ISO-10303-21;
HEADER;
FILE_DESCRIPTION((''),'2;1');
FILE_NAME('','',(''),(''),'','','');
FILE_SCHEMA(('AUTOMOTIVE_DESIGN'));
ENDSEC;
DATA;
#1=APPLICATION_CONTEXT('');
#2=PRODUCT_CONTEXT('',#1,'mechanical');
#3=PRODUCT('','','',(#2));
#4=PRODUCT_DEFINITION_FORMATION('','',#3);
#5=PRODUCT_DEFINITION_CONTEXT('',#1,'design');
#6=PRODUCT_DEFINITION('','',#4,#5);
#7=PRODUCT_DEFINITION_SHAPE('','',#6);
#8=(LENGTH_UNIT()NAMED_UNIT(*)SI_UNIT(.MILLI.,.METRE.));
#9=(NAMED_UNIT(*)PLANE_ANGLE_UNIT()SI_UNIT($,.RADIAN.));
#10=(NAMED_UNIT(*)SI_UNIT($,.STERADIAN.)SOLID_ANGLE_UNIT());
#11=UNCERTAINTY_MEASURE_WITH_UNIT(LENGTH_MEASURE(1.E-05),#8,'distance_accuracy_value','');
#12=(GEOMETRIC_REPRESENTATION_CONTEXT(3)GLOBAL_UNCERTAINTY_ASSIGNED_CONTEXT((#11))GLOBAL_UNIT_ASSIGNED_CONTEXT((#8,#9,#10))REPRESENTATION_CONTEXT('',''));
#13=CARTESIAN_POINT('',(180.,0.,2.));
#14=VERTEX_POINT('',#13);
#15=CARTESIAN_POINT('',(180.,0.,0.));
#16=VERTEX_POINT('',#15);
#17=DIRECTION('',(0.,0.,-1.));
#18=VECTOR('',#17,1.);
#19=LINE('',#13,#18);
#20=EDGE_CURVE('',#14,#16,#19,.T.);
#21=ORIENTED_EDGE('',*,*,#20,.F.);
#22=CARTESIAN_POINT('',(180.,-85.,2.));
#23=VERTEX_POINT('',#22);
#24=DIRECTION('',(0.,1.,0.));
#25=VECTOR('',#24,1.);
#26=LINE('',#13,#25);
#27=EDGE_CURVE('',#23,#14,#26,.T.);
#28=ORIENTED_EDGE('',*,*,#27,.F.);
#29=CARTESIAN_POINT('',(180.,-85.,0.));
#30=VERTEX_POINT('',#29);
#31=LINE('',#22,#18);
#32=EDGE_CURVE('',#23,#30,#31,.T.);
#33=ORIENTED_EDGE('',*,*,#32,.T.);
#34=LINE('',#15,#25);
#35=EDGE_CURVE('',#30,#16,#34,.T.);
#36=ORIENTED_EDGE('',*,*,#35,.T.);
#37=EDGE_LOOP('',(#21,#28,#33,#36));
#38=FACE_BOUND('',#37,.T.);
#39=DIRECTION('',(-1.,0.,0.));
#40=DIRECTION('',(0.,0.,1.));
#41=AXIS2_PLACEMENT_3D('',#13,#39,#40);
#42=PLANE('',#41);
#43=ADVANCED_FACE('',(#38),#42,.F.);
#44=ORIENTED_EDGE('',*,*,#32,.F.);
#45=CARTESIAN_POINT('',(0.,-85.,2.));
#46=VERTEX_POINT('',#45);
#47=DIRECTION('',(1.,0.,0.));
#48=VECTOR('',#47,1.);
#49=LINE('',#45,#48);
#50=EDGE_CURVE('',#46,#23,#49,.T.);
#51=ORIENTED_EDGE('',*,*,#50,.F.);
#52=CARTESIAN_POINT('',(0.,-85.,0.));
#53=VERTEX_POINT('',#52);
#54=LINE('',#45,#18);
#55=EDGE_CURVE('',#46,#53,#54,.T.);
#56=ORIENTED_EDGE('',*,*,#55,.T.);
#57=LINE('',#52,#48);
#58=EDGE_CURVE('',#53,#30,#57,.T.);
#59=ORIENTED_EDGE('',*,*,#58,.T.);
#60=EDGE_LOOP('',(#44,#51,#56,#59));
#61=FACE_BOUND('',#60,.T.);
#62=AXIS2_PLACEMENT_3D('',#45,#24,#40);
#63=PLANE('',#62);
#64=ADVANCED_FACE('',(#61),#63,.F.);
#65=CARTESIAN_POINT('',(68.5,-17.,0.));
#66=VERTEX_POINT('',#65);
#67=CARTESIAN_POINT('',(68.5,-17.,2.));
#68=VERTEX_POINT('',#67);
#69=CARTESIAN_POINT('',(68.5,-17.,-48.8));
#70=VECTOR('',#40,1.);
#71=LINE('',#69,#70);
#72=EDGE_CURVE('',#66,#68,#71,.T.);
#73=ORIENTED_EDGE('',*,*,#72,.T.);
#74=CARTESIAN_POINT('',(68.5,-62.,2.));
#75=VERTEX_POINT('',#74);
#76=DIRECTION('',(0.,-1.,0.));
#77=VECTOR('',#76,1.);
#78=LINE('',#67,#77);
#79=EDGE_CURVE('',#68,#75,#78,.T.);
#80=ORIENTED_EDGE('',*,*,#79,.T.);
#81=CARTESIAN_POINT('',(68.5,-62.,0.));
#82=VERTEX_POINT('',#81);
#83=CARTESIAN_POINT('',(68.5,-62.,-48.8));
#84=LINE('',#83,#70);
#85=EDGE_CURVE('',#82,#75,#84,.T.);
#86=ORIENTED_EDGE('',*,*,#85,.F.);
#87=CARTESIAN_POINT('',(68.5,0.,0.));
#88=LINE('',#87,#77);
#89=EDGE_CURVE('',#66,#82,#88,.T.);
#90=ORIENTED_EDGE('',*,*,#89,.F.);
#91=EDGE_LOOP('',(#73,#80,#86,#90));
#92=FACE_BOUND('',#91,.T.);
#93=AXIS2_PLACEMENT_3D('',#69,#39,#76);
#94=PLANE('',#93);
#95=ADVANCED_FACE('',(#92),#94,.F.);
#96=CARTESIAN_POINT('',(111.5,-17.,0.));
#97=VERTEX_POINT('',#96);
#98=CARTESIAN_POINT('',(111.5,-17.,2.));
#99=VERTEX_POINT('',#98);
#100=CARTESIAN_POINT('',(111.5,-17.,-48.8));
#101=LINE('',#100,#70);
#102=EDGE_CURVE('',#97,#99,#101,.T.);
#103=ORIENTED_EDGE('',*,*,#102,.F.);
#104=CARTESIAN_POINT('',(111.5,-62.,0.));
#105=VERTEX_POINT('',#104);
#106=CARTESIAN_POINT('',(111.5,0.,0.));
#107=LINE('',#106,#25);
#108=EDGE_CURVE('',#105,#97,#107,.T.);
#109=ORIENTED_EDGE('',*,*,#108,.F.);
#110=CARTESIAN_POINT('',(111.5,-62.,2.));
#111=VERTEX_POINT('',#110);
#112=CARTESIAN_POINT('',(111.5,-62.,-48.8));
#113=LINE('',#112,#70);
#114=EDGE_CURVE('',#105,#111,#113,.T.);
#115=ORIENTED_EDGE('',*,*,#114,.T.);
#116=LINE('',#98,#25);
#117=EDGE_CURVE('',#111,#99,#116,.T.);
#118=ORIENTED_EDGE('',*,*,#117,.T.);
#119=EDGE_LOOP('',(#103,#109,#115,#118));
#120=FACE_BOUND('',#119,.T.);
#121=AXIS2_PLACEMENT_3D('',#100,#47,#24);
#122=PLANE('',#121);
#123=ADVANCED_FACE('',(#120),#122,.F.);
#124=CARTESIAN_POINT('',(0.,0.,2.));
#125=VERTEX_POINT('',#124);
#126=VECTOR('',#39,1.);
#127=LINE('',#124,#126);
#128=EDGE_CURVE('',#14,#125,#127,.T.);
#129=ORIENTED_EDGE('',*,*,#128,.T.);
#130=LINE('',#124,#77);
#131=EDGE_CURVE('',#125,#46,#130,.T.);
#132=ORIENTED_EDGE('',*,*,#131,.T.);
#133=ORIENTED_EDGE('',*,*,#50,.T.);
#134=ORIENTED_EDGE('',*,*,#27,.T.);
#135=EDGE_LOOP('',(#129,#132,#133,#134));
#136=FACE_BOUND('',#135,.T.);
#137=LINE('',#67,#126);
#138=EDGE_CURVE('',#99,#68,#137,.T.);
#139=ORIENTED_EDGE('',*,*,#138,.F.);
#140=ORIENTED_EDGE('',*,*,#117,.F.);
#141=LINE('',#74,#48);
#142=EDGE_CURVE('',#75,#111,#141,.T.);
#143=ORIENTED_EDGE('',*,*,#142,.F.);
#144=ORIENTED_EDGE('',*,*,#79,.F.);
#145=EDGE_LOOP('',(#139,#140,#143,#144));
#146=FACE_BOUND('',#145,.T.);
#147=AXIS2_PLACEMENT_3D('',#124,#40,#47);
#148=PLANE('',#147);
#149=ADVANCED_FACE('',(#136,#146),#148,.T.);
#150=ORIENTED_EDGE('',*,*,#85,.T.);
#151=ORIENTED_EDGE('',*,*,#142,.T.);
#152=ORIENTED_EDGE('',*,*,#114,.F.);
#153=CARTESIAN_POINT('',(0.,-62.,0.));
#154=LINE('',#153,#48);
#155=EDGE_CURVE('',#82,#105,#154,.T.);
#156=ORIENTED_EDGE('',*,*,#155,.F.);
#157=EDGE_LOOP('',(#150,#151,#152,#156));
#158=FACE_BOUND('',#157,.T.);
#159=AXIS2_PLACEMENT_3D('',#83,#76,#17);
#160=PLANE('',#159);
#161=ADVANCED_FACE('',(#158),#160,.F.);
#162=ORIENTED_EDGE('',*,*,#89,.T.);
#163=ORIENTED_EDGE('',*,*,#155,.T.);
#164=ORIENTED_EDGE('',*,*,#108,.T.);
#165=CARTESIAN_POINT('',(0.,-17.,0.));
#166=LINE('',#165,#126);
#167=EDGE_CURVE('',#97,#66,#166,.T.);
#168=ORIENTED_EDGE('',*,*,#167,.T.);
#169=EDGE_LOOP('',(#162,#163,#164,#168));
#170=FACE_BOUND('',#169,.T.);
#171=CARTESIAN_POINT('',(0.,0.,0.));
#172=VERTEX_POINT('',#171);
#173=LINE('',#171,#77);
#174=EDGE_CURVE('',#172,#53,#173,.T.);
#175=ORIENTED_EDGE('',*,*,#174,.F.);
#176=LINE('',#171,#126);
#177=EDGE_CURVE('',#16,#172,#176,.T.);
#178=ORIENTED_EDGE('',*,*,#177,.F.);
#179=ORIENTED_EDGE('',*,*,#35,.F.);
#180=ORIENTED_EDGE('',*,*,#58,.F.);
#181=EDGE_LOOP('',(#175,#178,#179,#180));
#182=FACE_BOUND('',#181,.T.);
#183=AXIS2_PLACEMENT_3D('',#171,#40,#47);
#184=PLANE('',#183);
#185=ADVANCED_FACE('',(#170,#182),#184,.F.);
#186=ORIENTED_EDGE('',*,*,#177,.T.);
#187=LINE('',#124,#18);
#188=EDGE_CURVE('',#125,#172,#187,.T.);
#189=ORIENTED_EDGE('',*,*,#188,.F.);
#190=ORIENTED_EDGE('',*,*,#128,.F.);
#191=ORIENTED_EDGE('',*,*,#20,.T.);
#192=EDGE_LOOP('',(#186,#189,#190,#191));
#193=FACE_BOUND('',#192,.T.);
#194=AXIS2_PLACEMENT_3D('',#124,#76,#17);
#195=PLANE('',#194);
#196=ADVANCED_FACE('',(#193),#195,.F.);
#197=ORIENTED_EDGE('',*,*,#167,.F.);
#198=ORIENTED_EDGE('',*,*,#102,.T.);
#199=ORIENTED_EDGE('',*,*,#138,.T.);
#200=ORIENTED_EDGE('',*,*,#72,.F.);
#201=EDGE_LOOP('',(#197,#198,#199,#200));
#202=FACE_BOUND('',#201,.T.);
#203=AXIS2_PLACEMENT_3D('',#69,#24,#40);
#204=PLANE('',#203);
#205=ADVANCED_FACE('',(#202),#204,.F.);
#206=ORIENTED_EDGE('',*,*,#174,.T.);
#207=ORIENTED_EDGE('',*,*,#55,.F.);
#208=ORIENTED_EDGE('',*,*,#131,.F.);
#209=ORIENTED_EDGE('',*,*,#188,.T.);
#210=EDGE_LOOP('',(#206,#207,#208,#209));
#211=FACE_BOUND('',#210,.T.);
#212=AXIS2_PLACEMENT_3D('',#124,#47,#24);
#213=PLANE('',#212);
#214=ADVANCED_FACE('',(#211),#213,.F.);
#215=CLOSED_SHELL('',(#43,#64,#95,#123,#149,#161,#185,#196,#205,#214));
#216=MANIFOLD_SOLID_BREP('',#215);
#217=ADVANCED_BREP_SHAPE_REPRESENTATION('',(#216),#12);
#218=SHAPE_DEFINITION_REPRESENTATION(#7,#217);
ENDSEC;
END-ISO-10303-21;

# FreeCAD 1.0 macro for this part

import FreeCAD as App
import Part
import Sketcher

V = App.Vector


def add_polygon(sketch, points):
    """Adds a closed chain of lines whose ends are joined by coincident constraints."""
    first, n = sketch.GeometryCount, len(points)
    for a, b in zip(points, points[1:] + points[:1]):
        sketch.addGeometry(Part.LineSegment(App.Vector(*a, 0), App.Vector(*b, 0)), False)
    for i in range(n):
        sketch.addConstraint(Sketcher.Constraint("Coincident", first + i, 2, first + (i + 1) % n, 1))

doc = App.newDocument("Part")
params = doc.addObject("Spreadsheet::Sheet", "Params")
for row, (alias, value) in enumerate([
    ("sketch1_width", "180 mm"),
    ("sketch1_height", "85 mm"),
    ("pad1_length", "2 mm"),
    ("sketch2_width", "43 mm"),
    ("sketch2_height", "45 mm"),
    ("pocket1_length", "50.8 mm"),
], start=1):
    params.set(f"A{row}", alias)
    params.set(f"B{row}", "=" + value)
    params.setAlias(f"B{row}", alias)

body = doc.addObject("PartDesign::Body", "Body")

# Sketch on XY plane
sketch1 = body.newObject("Sketcher::SketchObject", "Sketch")
sketch1.AttachmentSupport = (doc.getObject("XY_Plane"), [""])
sketch1.MapMode = "FlatFace"
add_polygon(sketch1, [(0, 0), (0, -85), (180, -85), (180, 0)])  # lines 0-3
sketch1.addConstraint([
    Sketcher.Constraint("Vertical", 0),
    Sketcher.Constraint("Horizontal", 1),
    Sketcher.Constraint("Vertical", 2),
    Sketcher.Constraint("Horizontal", 3),
    Sketcher.Constraint("Coincident", 3, 2, -1, 1),
    Sketcher.Constraint("DistanceX", 1, 1, 1, 2, 180.0),
    Sketcher.Constraint("DistanceY", 0, 2, 0, 1, 85.0),
])
sketch1.setExpression("Constraints[9]", "Params.sketch1_width")
sketch1.setExpression("Constraints[10]", "Params.sketch1_height")
pad1 = body.newObject("PartDesign::Pad", "Pad")
pad1.Profile = sketch1
pad1.setExpression("Length", "Params.pad1_length")

# Sketch on XY plane
sketch2 = body.newObject("Sketcher::SketchObject", "Sketch001")
sketch2.AttachmentSupport = (doc.getObject("XY_Plane"), [""])
sketch2.MapMode = "FlatFace"
sketch2.AttachmentOffset = App.Placement(V(0, 0, 2), App.Rotation())
add_polygon(sketch2, [(68, -17), (68, -62), (112, -62), (112, -17)])  # lines 0-3
sketch2.addConstraint([
    Sketcher.Constraint("Vertical", 0),
    Sketcher.Constraint("Horizontal", 1),
    Sketcher.Constraint("Vertical", 2),
    Sketcher.Constraint("Horizontal", 3),
    Sketcher.Constraint("DistanceX", 1, 1, 1, 2, 43.0),
    Sketcher.Constraint("DistanceY", 0, 2, 0, 1, 45.0),
    Sketcher.Constraint("DistanceY", 0, 2, -1, 1, 62.0),
    Sketcher.Constraint("DistanceX", -1, 1, 0, 2, 68.5),
])
sketch2.setExpression("Constraints[8]", "Params.sketch2_width")
sketch2.setExpression("Constraints[9]", "Params.sketch2_height")
pocket1 = body.newObject("PartDesign::Pocket", "Pocket")
pocket1.Profile = sketch2
pocket1.setExpression("Length", "Params.pocket1_length")

doc.recompute()
